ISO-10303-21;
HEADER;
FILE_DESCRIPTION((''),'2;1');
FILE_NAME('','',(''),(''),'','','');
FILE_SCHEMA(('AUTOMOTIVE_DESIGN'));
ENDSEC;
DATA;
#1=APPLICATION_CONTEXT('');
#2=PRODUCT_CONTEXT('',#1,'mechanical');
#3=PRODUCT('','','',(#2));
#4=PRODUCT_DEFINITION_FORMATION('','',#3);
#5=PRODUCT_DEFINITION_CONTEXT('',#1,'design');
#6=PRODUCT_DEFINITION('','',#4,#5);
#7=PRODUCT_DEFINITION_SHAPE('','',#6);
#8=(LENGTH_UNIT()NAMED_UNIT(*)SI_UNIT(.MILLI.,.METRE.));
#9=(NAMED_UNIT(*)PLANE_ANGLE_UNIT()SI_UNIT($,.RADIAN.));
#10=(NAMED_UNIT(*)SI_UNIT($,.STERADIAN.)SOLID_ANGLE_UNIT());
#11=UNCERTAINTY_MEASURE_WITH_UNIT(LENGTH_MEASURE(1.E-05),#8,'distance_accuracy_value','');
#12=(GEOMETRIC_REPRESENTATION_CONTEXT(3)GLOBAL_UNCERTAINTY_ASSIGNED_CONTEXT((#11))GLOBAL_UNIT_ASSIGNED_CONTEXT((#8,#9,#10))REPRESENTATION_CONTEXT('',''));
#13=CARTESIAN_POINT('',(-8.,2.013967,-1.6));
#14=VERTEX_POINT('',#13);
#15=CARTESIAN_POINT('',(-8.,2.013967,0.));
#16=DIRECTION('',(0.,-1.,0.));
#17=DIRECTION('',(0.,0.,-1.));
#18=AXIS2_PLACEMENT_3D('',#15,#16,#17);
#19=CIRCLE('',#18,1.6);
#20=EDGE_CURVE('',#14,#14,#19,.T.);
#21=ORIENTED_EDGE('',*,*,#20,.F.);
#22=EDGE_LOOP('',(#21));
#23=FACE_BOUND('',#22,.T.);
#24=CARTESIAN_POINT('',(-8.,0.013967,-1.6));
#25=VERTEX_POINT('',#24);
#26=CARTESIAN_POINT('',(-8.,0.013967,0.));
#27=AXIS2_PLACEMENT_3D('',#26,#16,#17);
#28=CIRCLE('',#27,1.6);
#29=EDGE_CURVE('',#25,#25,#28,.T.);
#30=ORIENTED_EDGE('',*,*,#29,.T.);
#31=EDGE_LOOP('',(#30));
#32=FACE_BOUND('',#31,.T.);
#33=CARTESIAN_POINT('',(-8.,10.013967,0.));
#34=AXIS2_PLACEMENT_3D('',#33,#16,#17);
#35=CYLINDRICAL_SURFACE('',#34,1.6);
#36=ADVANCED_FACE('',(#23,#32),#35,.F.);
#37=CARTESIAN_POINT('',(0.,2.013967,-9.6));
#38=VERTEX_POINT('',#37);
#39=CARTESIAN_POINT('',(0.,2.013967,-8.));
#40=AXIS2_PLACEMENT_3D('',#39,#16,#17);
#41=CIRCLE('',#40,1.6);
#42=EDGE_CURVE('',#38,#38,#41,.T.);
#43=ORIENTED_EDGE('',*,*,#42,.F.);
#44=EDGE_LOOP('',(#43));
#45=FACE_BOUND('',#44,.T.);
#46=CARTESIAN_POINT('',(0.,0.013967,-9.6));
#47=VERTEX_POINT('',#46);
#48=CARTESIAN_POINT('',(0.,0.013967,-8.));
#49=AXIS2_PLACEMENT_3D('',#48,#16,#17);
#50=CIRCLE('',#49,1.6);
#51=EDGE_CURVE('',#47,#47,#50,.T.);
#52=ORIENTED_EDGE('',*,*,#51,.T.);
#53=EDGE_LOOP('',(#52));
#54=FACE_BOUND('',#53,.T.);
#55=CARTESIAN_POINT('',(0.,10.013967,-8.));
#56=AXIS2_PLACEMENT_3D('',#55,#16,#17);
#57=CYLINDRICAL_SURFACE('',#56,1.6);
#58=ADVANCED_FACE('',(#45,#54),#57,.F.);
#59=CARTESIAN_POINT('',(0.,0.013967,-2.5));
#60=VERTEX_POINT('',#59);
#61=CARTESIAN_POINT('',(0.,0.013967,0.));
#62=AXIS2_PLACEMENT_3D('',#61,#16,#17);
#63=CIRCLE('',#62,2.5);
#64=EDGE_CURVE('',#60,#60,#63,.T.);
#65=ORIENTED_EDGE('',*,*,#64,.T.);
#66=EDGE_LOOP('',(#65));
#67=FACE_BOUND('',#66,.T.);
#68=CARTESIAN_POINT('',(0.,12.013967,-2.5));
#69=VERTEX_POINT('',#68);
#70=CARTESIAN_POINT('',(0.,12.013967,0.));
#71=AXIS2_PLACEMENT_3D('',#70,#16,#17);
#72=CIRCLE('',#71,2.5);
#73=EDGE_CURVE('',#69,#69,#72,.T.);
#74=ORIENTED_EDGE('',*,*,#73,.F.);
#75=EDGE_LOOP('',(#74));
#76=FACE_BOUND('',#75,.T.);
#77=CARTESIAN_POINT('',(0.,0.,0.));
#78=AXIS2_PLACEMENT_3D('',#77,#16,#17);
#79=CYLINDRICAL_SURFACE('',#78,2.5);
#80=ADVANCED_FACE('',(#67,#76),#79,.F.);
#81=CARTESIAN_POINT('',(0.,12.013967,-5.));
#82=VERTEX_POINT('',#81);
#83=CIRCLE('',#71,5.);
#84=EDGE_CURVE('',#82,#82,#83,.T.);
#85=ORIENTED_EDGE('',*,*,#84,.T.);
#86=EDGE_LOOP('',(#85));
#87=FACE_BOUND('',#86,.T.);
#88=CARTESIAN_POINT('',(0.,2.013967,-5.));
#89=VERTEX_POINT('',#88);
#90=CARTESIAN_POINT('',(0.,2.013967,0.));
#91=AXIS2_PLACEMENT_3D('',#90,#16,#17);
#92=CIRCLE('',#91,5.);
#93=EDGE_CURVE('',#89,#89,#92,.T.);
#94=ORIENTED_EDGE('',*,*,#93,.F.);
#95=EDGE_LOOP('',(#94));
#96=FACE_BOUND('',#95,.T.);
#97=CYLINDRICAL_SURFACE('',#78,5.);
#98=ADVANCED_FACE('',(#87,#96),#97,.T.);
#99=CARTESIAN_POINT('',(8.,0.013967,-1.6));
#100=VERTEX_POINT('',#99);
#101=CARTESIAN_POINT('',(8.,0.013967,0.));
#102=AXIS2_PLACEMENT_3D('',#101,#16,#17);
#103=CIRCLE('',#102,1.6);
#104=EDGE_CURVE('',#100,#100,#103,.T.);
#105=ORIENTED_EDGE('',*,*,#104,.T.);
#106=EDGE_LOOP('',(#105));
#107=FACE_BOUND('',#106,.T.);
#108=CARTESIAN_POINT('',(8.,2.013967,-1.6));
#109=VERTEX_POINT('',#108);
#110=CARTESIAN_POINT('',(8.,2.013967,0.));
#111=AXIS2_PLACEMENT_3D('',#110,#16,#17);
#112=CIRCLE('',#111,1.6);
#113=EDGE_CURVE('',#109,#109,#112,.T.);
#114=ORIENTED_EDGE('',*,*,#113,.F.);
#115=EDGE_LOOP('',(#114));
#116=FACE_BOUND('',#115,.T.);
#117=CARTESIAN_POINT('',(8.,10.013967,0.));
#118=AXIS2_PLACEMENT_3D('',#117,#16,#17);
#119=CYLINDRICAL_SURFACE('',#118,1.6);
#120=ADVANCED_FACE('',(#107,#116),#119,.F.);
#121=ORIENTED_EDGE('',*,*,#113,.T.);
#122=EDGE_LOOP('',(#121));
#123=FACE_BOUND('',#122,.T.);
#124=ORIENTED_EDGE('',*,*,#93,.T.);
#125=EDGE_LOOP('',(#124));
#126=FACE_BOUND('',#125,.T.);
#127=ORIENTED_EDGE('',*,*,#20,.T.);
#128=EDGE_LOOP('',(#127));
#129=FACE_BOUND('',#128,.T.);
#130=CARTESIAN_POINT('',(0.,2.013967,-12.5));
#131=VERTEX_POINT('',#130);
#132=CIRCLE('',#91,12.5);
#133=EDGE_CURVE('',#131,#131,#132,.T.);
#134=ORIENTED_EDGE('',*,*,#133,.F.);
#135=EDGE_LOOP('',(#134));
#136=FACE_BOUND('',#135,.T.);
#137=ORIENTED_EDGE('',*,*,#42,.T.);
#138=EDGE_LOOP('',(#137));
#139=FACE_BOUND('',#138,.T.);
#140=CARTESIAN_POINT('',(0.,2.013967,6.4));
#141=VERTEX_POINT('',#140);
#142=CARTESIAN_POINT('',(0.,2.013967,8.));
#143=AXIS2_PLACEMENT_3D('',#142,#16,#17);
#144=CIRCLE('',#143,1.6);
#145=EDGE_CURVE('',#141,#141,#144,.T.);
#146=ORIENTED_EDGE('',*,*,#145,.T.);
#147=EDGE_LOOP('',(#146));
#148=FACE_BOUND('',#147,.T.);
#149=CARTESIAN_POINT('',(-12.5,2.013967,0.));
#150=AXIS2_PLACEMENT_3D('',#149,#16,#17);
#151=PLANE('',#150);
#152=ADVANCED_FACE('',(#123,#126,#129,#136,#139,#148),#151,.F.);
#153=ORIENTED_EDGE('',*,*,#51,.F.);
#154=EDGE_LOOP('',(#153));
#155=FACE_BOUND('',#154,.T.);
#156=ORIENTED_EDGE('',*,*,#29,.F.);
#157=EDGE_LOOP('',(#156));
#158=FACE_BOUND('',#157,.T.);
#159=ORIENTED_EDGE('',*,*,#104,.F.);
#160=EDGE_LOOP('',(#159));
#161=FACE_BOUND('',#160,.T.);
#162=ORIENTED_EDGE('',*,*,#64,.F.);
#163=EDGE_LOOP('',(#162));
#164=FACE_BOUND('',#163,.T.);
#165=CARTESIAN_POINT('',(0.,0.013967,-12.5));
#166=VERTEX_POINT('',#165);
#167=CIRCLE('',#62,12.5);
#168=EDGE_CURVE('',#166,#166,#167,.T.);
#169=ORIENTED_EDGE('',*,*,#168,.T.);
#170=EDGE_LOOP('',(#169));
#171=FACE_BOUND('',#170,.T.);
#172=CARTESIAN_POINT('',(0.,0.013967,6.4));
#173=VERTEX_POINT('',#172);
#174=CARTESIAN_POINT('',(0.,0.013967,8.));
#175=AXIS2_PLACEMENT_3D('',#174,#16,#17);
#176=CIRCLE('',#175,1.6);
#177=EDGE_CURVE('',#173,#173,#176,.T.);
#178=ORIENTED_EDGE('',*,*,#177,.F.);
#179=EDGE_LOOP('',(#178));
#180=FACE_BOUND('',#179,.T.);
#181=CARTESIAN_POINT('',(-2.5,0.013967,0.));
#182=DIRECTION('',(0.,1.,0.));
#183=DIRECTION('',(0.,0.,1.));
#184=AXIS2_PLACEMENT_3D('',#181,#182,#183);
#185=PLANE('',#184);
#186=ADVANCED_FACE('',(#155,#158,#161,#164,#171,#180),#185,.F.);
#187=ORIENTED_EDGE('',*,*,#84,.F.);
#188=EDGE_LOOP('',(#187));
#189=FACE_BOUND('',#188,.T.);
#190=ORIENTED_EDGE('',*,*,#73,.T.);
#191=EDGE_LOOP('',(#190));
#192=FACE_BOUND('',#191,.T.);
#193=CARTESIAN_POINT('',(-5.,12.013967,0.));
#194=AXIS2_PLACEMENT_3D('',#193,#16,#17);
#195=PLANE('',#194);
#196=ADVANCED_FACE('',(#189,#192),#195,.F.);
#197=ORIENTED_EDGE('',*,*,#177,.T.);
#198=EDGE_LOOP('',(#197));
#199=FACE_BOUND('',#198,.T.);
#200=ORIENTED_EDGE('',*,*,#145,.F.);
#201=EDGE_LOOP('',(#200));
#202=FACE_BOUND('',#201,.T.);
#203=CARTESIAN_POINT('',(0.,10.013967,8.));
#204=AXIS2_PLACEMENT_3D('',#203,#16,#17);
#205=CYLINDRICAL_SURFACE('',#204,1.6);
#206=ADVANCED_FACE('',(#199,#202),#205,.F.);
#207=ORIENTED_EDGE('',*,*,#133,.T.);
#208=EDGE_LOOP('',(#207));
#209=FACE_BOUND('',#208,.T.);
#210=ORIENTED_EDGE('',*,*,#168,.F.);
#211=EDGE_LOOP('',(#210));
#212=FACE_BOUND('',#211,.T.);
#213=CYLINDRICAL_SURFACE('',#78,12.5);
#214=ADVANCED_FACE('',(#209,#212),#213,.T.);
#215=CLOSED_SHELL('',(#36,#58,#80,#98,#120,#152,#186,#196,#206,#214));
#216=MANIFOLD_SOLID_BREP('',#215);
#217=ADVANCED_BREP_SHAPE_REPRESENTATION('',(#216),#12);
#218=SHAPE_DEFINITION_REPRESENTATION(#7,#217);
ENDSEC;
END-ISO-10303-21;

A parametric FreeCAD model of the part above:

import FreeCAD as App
import Part
import Sketcher

V = App.Vector

doc = App.newDocument("Part")
body = doc.addObject("PartDesign::Body", "Body")

# Sketch on XY plane
sketch1 = body.newObject("Sketcher::SketchObject", "Sketch")
sketch1.AttachmentSupport = (doc.getObject("XY_Plane"), [""])
sketch1.MapMode = "FlatFace"
sketch1.addGeometry([
    Part.LineSegment(V(-12.5, 0.013967, 0), V(-2.5, 0.013967, 0)),  # 0
    Part.LineSegment(V(-2.5, 0.013967, 0), V(-2.5, 12.013967, 0)),  # 1
    Part.LineSegment(V(-2.5, 12.013967, 0), V(-5, 12.013967, 0)),  # 2
    Part.LineSegment(V(-5, 12.013967, 0), V(-5, 2.013967, 0)),  # 3
    Part.LineSegment(V(-5, 2.013967, 0), V(-12.5, 2.013967, 0)),  # 4
    Part.LineSegment(V(-12.5, 2.013967, 0), V(-12.5, 0.013967, 0)),  # 5
], False)
sketch1.addConstraint([
    Sketcher.Constraint("Coincident", 0, 2, 1, 1),
    Sketcher.Constraint("Coincident", 1, 2, 2, 1),
    Sketcher.Constraint("Coincident", 2, 2, 3, 1),
    Sketcher.Constraint("Coincident", 3, 2, 4, 1),
    Sketcher.Constraint("Coincident", 4, 2, 5, 1),
    Sketcher.Constraint("Coincident", 5, 2, 0, 1),
    Sketcher.Constraint("Horizontal", 0),
    Sketcher.Constraint("Vertical", 1),
    Sketcher.Constraint("Horizontal", 2),
    Sketcher.Constraint("Vertical", 3),
    Sketcher.Constraint("Horizontal", 4),
    Sketcher.Constraint("Vertical", 5),
    Sketcher.Constraint("Equal", 0, 3),
    Sketcher.Constraint("DistanceX", 0, 1, 0, 2, 10.0),
    Sketcher.Constraint("DistanceY", 1, 1, 1, 2, 12.0),
    Sketcher.Constraint("DistanceX", 2, 2, 2, 1, 2.5),
    Sketcher.Constraint("DistanceX", 2, 2, -1, 1, 5.0),
    Sketcher.Constraint("DistanceY", -1, 1, 0, 2, 0.013967),
])
revolution = body.newObject("PartDesign::Revolution", "Revolution")
revolution.Profile = sketch1
revolution.ReferenceAxis = (sketch1, ["V_Axis"])
revolution.Angle = 360

# Sketch on XZ plane
sketch2 = body.newObject("Sketcher::SketchObject", "Sketch001")
sketch2.AttachmentSupport = (doc.getObject("XZ_Plane"), [""])
sketch2.MapMode = "FlatFace"
sketch2.AttachmentOffset = App.Placement(V(0, 0, -0.013967), App.Rotation())
sketch2.addGeometry([
    Part.Circle(V(-8, 0, 0), V(0, 0, 1), 1.6),
    Part.Circle(V(0, 8, 0), V(0, 0, 1), 1.6),
    Part.Circle(V(8, 0, 0), V(0, 0, 1), 1.6),
    Part.Circle(V(0, -8, 0), V(0, 0, 1), 1.6),
], False)
sketch2.addConstraint([
    Sketcher.Constraint("Equal", 0, 1),
    Sketcher.Constraint("Equal", 1, 2),
    Sketcher.Constraint("Equal", 2, 3),
    Sketcher.Constraint("Symmetric", 0, 3, 2, 3, -1, 1),
    Sketcher.Constraint("Symmetric", 1, 3, 3, 3, -1, 1),
    Sketcher.Constraint("PointOnObject", 0, 3, -1),
    Sketcher.Constraint("PointOnObject", 1, 3, -2),
    Sketcher.Constraint("Diameter", 0, 3.2),
    Sketcher.Constraint("DistanceX", 0, 3, -1, 1, 8.0),
    Sketcher.Constraint("DistanceY", -1, 1, 1, 3, 8.0),
])
pocket1 = body.newObject("PartDesign::Pocket", "Pocket")
pocket1.Profile = sketch2
pocket1.Length = 10

doc.recompute()
